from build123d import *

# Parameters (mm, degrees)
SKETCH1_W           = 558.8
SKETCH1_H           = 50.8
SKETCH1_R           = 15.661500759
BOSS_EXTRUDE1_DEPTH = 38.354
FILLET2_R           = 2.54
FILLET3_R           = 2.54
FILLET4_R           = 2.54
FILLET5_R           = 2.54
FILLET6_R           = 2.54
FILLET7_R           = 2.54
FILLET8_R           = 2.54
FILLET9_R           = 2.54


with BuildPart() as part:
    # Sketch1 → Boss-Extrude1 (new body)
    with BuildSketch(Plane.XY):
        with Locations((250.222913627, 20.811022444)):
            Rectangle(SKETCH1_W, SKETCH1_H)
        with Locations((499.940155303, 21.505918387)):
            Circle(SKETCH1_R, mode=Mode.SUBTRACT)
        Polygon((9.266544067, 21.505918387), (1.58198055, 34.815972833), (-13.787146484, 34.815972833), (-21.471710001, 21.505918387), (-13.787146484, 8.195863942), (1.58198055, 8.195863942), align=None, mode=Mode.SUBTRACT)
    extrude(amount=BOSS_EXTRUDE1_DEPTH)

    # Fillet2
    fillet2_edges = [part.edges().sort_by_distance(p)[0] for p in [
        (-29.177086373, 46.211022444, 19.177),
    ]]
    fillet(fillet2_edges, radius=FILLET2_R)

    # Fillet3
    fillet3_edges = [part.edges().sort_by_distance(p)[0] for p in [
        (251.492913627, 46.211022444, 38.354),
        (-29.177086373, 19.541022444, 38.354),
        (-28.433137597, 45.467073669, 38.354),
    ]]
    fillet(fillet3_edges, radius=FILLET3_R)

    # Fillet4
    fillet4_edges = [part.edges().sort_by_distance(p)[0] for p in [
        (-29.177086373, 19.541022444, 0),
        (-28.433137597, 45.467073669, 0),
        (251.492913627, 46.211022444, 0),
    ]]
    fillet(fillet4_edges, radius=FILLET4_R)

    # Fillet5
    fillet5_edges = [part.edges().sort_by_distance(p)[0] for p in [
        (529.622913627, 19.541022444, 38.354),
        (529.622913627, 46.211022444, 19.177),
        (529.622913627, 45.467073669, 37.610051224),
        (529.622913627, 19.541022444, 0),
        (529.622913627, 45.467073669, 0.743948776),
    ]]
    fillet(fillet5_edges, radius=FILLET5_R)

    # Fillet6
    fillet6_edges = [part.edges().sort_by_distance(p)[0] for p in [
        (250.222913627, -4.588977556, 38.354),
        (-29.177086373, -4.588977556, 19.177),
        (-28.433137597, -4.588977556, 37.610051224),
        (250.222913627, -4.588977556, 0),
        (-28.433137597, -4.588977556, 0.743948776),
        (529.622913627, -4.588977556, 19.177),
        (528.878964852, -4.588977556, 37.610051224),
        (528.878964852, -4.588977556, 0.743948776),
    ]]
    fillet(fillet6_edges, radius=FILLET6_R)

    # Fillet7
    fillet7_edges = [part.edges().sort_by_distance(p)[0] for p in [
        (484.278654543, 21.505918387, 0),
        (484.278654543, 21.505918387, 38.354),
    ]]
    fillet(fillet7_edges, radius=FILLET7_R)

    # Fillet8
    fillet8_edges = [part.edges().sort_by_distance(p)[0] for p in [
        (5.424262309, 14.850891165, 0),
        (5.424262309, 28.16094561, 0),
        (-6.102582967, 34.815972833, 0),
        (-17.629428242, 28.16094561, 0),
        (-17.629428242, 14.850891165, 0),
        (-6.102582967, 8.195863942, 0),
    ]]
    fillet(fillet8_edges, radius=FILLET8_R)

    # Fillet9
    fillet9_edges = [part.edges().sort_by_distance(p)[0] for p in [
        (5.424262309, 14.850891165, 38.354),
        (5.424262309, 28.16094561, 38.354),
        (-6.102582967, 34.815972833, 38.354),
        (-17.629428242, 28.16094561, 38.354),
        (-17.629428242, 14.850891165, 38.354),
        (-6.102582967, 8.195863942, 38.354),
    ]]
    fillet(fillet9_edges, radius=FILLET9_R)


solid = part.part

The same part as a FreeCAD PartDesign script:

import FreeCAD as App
import Part
import Sketcher
Q = App.Units.Quantity


def edges_at(feature, points):
    """Names of the edges that pass closest to the given points."""
    edges = feature.Shape.Edges
    near = lambda p: min(range(len(edges)), key=lambda i: edges[i].distToShape(Part.Vertex(*p))[0])
    return sorted({f"Edge{near(p) + 1}" for p in points})


def add_polygon(sketch, points):
    """Adds a closed chain of lines whose ends are joined by coincident constraints."""
    first, n = sketch.GeometryCount, len(points)
    for a, b in zip(points, points[1:] + points[:1]):
        sketch.addGeometry(Part.LineSegment(App.Vector(*a, 0), App.Vector(*b, 0)), False)
    for i in range(n):
        sketch.addConstraint(Sketcher.Constraint("Coincident", first + i, 2, first + (i + 1) % n, 1))

doc = App.newDocument("Part")
body = doc.addObject("PartDesign::Body", "Body")

sketch1 = body.newObject("Sketcher::SketchObject", "Sketch")
sketch1.AttachmentSupport = (doc.getObject("XY_Plane"), [""])
sketch1.MapMode = "FlatFace"
add_polygon(sketch1, [(-29, 46), (-29, -5), (530, -5), (530, 46)])
add_polygon(sketch1, [(2, 35), (9, 22), (2, 8), (-14, 8), (-21, 22), (-14, 35)])
sketch1.addGeometry(Part.Circle(App.Vector(500, 22, 0), App.Vector(0, 0, 1), 16), False)
sketch1.addConstraint(Sketcher.Constraint("Vertical", 0))
sketch1.addConstraint(Sketcher.Constraint("Horizontal", 1))
sketch1.addConstraint(Sketcher.Constraint("Vertical", 2))
sketch1.addConstraint(Sketcher.Constraint("Horizontal", 3))
sketch1.addConstraint(Sketcher.Constraint("Horizontal", 6))
sketch1.addConstraint(Sketcher.Constraint("Horizontal", 9))
sketch1.addConstraint(Sketcher.Constraint("Parallel", 4, 7))
sketch1.addConstraint(Sketcher.Constraint("Parallel", 5, 8))
sketch1.addConstraint(Sketcher.Constraint("Horizontal", 10, 3, 4, 2))
sketch1.addConstraint(Sketcher.Constraint("Horizontal", 4, 2, 7, 2))
sketch1.addConstraint(Sketcher.Constraint("Vertical", 6, 2, 8, 2))
sketch1.addConstraint(Sketcher.Constraint("Vertical", 5, 2, 9, 2))
sketch1.addConstraint(Sketcher.Constraint("DistanceX", 1, 1, 1, 2, Q("22 in")))
sketch1.addConstraint(Sketcher.Constraint("DistanceY", 0, 2, 0, 1, Q("2 in")))
sketch1.addConstraint(Sketcher.Constraint("Angle", 4, Q("-60 deg")))
sketch1.addConstraint(Sketcher.Constraint("Diameter", 10, 31.323002))
sketch1.addConstraint(Sketcher.Constraint("DistanceX", 6, 2, 10, 3, 513.727302))
sketch1.addConstraint(Sketcher.Constraint("DistanceX", 6, 2, 6, 1, 15.369127))
sketch1.addConstraint(Sketcher.Constraint("DistanceY", -1, 1, 10, 3, 21.505918))
sketch1.addConstraint(Sketcher.Constraint("DistanceX", -1, 1, 5, 2, 1.581981))
sketch1.addConstraint(Sketcher.Constraint("DistanceX", 7, 2, -1, 1, 21.47171))
sketch1.addConstraint(Sketcher.Constraint("DistanceX", 0, 2, 10, 3, 529.117242))
sketch1.addConstraint(Sketcher.Constraint("DistanceY", 0, 2, 5, 2, 12.784841))
pad1 = body.newObject("PartDesign::Pad", "Pad")
pad1.Profile = sketch1
pad1.Length = Q("1.51 in")
doc.recompute()

fillet = body.newObject("PartDesign::Fillet", "Fillet")
fillet.Base = (pad1, edges_at(pad1, [(-29.177, 46.211, 19.177)]))
fillet.Radius = Q("0.1 in")
doc.recompute()

fillet2 = body.newObject("PartDesign::Fillet", "Fillet001")
fillet2.Base = (fillet, edges_at(fillet, [(251.493, 46.211, 38.354), (-29.177, 19.541, 38.354), (-28.433, 45.467, 38.354)]))
fillet2.Radius = Q("0.1 in")
doc.recompute()

fillet3 = body.newObject("PartDesign::Fillet", "Fillet002")
fillet3.Base = (fillet2, edges_at(fillet2, [(-29.177, 19.541, 0), (-28.433, 45.467, 0), (251.493, 46.211, 0)]))
fillet3.Radius = Q("0.1 in")
doc.recompute()

fillet4 = body.newObject("PartDesign::Fillet", "Fillet003")
fillet4.Base = (fillet3, edges_at(fillet3, [
    (529.623, 19.541, 38.354),
    (529.623, 46.211, 19.177),
    (529.623, 45.467, 37.61),
    (529.623, 19.541, 0),
    (529.623, 45.467, 0.744),
]))
fillet4.Radius = Q("0.1 in")
doc.recompute()

fillet5 = body.newObject("PartDesign::Fillet", "Fillet004")
fillet5.Base = (fillet4, edges_at(fillet4, [
    (250.223, -4.589, 38.354),
    (-29.177, -4.589, 19.177),
    (-28.433, -4.589, 37.61),
    (250.223, -4.589, 0),
    (-28.433, -4.589, 0.744),
    (529.623, -4.589, 19.177),
    (528.879, -4.589, 37.61),
    (528.879, -4.589, 0.744),
]))
fillet5.Radius = Q("0.1 in")
doc.recompute()

fillet6 = body.newObject("PartDesign::Fillet", "Fillet005")
fillet6.Base = (fillet5, edges_at(fillet5, [(484.279, 21.506, 0), (484.279, 21.506, 38.354)]))
fillet6.Radius = Q("0.1 in")
doc.recompute()

fillet7 = body.newObject("PartDesign::Fillet", "Fillet006")
fillet7.Base = (fillet6, edges_at(fillet6, [
    (5.424, 14.851, 0),
    (5.424, 28.161, 0),
    (-6.103, 34.816, 0),
    (-17.629, 28.161, 0),
    (-17.629, 14.851, 0),
    (-6.103, 8.196, 0),
]))
fillet7.Radius = Q("0.1 in")
doc.recompute()

fillet8 = body.newObject("PartDesign::Fillet", "Fillet007")
fillet8.Base = (fillet7, edges_at(fillet7, [
    (5.424, 14.851, 38.354),
    (5.424, 28.161, 38.354),
    (-6.103, 34.816, 38.354),
    (-17.629, 28.161, 38.354),
    (-17.629, 14.851, 38.354),
    (-6.103, 8.196, 38.354),
]))
fillet8.Radius = Q("0.1 in")

doc.recompute()
